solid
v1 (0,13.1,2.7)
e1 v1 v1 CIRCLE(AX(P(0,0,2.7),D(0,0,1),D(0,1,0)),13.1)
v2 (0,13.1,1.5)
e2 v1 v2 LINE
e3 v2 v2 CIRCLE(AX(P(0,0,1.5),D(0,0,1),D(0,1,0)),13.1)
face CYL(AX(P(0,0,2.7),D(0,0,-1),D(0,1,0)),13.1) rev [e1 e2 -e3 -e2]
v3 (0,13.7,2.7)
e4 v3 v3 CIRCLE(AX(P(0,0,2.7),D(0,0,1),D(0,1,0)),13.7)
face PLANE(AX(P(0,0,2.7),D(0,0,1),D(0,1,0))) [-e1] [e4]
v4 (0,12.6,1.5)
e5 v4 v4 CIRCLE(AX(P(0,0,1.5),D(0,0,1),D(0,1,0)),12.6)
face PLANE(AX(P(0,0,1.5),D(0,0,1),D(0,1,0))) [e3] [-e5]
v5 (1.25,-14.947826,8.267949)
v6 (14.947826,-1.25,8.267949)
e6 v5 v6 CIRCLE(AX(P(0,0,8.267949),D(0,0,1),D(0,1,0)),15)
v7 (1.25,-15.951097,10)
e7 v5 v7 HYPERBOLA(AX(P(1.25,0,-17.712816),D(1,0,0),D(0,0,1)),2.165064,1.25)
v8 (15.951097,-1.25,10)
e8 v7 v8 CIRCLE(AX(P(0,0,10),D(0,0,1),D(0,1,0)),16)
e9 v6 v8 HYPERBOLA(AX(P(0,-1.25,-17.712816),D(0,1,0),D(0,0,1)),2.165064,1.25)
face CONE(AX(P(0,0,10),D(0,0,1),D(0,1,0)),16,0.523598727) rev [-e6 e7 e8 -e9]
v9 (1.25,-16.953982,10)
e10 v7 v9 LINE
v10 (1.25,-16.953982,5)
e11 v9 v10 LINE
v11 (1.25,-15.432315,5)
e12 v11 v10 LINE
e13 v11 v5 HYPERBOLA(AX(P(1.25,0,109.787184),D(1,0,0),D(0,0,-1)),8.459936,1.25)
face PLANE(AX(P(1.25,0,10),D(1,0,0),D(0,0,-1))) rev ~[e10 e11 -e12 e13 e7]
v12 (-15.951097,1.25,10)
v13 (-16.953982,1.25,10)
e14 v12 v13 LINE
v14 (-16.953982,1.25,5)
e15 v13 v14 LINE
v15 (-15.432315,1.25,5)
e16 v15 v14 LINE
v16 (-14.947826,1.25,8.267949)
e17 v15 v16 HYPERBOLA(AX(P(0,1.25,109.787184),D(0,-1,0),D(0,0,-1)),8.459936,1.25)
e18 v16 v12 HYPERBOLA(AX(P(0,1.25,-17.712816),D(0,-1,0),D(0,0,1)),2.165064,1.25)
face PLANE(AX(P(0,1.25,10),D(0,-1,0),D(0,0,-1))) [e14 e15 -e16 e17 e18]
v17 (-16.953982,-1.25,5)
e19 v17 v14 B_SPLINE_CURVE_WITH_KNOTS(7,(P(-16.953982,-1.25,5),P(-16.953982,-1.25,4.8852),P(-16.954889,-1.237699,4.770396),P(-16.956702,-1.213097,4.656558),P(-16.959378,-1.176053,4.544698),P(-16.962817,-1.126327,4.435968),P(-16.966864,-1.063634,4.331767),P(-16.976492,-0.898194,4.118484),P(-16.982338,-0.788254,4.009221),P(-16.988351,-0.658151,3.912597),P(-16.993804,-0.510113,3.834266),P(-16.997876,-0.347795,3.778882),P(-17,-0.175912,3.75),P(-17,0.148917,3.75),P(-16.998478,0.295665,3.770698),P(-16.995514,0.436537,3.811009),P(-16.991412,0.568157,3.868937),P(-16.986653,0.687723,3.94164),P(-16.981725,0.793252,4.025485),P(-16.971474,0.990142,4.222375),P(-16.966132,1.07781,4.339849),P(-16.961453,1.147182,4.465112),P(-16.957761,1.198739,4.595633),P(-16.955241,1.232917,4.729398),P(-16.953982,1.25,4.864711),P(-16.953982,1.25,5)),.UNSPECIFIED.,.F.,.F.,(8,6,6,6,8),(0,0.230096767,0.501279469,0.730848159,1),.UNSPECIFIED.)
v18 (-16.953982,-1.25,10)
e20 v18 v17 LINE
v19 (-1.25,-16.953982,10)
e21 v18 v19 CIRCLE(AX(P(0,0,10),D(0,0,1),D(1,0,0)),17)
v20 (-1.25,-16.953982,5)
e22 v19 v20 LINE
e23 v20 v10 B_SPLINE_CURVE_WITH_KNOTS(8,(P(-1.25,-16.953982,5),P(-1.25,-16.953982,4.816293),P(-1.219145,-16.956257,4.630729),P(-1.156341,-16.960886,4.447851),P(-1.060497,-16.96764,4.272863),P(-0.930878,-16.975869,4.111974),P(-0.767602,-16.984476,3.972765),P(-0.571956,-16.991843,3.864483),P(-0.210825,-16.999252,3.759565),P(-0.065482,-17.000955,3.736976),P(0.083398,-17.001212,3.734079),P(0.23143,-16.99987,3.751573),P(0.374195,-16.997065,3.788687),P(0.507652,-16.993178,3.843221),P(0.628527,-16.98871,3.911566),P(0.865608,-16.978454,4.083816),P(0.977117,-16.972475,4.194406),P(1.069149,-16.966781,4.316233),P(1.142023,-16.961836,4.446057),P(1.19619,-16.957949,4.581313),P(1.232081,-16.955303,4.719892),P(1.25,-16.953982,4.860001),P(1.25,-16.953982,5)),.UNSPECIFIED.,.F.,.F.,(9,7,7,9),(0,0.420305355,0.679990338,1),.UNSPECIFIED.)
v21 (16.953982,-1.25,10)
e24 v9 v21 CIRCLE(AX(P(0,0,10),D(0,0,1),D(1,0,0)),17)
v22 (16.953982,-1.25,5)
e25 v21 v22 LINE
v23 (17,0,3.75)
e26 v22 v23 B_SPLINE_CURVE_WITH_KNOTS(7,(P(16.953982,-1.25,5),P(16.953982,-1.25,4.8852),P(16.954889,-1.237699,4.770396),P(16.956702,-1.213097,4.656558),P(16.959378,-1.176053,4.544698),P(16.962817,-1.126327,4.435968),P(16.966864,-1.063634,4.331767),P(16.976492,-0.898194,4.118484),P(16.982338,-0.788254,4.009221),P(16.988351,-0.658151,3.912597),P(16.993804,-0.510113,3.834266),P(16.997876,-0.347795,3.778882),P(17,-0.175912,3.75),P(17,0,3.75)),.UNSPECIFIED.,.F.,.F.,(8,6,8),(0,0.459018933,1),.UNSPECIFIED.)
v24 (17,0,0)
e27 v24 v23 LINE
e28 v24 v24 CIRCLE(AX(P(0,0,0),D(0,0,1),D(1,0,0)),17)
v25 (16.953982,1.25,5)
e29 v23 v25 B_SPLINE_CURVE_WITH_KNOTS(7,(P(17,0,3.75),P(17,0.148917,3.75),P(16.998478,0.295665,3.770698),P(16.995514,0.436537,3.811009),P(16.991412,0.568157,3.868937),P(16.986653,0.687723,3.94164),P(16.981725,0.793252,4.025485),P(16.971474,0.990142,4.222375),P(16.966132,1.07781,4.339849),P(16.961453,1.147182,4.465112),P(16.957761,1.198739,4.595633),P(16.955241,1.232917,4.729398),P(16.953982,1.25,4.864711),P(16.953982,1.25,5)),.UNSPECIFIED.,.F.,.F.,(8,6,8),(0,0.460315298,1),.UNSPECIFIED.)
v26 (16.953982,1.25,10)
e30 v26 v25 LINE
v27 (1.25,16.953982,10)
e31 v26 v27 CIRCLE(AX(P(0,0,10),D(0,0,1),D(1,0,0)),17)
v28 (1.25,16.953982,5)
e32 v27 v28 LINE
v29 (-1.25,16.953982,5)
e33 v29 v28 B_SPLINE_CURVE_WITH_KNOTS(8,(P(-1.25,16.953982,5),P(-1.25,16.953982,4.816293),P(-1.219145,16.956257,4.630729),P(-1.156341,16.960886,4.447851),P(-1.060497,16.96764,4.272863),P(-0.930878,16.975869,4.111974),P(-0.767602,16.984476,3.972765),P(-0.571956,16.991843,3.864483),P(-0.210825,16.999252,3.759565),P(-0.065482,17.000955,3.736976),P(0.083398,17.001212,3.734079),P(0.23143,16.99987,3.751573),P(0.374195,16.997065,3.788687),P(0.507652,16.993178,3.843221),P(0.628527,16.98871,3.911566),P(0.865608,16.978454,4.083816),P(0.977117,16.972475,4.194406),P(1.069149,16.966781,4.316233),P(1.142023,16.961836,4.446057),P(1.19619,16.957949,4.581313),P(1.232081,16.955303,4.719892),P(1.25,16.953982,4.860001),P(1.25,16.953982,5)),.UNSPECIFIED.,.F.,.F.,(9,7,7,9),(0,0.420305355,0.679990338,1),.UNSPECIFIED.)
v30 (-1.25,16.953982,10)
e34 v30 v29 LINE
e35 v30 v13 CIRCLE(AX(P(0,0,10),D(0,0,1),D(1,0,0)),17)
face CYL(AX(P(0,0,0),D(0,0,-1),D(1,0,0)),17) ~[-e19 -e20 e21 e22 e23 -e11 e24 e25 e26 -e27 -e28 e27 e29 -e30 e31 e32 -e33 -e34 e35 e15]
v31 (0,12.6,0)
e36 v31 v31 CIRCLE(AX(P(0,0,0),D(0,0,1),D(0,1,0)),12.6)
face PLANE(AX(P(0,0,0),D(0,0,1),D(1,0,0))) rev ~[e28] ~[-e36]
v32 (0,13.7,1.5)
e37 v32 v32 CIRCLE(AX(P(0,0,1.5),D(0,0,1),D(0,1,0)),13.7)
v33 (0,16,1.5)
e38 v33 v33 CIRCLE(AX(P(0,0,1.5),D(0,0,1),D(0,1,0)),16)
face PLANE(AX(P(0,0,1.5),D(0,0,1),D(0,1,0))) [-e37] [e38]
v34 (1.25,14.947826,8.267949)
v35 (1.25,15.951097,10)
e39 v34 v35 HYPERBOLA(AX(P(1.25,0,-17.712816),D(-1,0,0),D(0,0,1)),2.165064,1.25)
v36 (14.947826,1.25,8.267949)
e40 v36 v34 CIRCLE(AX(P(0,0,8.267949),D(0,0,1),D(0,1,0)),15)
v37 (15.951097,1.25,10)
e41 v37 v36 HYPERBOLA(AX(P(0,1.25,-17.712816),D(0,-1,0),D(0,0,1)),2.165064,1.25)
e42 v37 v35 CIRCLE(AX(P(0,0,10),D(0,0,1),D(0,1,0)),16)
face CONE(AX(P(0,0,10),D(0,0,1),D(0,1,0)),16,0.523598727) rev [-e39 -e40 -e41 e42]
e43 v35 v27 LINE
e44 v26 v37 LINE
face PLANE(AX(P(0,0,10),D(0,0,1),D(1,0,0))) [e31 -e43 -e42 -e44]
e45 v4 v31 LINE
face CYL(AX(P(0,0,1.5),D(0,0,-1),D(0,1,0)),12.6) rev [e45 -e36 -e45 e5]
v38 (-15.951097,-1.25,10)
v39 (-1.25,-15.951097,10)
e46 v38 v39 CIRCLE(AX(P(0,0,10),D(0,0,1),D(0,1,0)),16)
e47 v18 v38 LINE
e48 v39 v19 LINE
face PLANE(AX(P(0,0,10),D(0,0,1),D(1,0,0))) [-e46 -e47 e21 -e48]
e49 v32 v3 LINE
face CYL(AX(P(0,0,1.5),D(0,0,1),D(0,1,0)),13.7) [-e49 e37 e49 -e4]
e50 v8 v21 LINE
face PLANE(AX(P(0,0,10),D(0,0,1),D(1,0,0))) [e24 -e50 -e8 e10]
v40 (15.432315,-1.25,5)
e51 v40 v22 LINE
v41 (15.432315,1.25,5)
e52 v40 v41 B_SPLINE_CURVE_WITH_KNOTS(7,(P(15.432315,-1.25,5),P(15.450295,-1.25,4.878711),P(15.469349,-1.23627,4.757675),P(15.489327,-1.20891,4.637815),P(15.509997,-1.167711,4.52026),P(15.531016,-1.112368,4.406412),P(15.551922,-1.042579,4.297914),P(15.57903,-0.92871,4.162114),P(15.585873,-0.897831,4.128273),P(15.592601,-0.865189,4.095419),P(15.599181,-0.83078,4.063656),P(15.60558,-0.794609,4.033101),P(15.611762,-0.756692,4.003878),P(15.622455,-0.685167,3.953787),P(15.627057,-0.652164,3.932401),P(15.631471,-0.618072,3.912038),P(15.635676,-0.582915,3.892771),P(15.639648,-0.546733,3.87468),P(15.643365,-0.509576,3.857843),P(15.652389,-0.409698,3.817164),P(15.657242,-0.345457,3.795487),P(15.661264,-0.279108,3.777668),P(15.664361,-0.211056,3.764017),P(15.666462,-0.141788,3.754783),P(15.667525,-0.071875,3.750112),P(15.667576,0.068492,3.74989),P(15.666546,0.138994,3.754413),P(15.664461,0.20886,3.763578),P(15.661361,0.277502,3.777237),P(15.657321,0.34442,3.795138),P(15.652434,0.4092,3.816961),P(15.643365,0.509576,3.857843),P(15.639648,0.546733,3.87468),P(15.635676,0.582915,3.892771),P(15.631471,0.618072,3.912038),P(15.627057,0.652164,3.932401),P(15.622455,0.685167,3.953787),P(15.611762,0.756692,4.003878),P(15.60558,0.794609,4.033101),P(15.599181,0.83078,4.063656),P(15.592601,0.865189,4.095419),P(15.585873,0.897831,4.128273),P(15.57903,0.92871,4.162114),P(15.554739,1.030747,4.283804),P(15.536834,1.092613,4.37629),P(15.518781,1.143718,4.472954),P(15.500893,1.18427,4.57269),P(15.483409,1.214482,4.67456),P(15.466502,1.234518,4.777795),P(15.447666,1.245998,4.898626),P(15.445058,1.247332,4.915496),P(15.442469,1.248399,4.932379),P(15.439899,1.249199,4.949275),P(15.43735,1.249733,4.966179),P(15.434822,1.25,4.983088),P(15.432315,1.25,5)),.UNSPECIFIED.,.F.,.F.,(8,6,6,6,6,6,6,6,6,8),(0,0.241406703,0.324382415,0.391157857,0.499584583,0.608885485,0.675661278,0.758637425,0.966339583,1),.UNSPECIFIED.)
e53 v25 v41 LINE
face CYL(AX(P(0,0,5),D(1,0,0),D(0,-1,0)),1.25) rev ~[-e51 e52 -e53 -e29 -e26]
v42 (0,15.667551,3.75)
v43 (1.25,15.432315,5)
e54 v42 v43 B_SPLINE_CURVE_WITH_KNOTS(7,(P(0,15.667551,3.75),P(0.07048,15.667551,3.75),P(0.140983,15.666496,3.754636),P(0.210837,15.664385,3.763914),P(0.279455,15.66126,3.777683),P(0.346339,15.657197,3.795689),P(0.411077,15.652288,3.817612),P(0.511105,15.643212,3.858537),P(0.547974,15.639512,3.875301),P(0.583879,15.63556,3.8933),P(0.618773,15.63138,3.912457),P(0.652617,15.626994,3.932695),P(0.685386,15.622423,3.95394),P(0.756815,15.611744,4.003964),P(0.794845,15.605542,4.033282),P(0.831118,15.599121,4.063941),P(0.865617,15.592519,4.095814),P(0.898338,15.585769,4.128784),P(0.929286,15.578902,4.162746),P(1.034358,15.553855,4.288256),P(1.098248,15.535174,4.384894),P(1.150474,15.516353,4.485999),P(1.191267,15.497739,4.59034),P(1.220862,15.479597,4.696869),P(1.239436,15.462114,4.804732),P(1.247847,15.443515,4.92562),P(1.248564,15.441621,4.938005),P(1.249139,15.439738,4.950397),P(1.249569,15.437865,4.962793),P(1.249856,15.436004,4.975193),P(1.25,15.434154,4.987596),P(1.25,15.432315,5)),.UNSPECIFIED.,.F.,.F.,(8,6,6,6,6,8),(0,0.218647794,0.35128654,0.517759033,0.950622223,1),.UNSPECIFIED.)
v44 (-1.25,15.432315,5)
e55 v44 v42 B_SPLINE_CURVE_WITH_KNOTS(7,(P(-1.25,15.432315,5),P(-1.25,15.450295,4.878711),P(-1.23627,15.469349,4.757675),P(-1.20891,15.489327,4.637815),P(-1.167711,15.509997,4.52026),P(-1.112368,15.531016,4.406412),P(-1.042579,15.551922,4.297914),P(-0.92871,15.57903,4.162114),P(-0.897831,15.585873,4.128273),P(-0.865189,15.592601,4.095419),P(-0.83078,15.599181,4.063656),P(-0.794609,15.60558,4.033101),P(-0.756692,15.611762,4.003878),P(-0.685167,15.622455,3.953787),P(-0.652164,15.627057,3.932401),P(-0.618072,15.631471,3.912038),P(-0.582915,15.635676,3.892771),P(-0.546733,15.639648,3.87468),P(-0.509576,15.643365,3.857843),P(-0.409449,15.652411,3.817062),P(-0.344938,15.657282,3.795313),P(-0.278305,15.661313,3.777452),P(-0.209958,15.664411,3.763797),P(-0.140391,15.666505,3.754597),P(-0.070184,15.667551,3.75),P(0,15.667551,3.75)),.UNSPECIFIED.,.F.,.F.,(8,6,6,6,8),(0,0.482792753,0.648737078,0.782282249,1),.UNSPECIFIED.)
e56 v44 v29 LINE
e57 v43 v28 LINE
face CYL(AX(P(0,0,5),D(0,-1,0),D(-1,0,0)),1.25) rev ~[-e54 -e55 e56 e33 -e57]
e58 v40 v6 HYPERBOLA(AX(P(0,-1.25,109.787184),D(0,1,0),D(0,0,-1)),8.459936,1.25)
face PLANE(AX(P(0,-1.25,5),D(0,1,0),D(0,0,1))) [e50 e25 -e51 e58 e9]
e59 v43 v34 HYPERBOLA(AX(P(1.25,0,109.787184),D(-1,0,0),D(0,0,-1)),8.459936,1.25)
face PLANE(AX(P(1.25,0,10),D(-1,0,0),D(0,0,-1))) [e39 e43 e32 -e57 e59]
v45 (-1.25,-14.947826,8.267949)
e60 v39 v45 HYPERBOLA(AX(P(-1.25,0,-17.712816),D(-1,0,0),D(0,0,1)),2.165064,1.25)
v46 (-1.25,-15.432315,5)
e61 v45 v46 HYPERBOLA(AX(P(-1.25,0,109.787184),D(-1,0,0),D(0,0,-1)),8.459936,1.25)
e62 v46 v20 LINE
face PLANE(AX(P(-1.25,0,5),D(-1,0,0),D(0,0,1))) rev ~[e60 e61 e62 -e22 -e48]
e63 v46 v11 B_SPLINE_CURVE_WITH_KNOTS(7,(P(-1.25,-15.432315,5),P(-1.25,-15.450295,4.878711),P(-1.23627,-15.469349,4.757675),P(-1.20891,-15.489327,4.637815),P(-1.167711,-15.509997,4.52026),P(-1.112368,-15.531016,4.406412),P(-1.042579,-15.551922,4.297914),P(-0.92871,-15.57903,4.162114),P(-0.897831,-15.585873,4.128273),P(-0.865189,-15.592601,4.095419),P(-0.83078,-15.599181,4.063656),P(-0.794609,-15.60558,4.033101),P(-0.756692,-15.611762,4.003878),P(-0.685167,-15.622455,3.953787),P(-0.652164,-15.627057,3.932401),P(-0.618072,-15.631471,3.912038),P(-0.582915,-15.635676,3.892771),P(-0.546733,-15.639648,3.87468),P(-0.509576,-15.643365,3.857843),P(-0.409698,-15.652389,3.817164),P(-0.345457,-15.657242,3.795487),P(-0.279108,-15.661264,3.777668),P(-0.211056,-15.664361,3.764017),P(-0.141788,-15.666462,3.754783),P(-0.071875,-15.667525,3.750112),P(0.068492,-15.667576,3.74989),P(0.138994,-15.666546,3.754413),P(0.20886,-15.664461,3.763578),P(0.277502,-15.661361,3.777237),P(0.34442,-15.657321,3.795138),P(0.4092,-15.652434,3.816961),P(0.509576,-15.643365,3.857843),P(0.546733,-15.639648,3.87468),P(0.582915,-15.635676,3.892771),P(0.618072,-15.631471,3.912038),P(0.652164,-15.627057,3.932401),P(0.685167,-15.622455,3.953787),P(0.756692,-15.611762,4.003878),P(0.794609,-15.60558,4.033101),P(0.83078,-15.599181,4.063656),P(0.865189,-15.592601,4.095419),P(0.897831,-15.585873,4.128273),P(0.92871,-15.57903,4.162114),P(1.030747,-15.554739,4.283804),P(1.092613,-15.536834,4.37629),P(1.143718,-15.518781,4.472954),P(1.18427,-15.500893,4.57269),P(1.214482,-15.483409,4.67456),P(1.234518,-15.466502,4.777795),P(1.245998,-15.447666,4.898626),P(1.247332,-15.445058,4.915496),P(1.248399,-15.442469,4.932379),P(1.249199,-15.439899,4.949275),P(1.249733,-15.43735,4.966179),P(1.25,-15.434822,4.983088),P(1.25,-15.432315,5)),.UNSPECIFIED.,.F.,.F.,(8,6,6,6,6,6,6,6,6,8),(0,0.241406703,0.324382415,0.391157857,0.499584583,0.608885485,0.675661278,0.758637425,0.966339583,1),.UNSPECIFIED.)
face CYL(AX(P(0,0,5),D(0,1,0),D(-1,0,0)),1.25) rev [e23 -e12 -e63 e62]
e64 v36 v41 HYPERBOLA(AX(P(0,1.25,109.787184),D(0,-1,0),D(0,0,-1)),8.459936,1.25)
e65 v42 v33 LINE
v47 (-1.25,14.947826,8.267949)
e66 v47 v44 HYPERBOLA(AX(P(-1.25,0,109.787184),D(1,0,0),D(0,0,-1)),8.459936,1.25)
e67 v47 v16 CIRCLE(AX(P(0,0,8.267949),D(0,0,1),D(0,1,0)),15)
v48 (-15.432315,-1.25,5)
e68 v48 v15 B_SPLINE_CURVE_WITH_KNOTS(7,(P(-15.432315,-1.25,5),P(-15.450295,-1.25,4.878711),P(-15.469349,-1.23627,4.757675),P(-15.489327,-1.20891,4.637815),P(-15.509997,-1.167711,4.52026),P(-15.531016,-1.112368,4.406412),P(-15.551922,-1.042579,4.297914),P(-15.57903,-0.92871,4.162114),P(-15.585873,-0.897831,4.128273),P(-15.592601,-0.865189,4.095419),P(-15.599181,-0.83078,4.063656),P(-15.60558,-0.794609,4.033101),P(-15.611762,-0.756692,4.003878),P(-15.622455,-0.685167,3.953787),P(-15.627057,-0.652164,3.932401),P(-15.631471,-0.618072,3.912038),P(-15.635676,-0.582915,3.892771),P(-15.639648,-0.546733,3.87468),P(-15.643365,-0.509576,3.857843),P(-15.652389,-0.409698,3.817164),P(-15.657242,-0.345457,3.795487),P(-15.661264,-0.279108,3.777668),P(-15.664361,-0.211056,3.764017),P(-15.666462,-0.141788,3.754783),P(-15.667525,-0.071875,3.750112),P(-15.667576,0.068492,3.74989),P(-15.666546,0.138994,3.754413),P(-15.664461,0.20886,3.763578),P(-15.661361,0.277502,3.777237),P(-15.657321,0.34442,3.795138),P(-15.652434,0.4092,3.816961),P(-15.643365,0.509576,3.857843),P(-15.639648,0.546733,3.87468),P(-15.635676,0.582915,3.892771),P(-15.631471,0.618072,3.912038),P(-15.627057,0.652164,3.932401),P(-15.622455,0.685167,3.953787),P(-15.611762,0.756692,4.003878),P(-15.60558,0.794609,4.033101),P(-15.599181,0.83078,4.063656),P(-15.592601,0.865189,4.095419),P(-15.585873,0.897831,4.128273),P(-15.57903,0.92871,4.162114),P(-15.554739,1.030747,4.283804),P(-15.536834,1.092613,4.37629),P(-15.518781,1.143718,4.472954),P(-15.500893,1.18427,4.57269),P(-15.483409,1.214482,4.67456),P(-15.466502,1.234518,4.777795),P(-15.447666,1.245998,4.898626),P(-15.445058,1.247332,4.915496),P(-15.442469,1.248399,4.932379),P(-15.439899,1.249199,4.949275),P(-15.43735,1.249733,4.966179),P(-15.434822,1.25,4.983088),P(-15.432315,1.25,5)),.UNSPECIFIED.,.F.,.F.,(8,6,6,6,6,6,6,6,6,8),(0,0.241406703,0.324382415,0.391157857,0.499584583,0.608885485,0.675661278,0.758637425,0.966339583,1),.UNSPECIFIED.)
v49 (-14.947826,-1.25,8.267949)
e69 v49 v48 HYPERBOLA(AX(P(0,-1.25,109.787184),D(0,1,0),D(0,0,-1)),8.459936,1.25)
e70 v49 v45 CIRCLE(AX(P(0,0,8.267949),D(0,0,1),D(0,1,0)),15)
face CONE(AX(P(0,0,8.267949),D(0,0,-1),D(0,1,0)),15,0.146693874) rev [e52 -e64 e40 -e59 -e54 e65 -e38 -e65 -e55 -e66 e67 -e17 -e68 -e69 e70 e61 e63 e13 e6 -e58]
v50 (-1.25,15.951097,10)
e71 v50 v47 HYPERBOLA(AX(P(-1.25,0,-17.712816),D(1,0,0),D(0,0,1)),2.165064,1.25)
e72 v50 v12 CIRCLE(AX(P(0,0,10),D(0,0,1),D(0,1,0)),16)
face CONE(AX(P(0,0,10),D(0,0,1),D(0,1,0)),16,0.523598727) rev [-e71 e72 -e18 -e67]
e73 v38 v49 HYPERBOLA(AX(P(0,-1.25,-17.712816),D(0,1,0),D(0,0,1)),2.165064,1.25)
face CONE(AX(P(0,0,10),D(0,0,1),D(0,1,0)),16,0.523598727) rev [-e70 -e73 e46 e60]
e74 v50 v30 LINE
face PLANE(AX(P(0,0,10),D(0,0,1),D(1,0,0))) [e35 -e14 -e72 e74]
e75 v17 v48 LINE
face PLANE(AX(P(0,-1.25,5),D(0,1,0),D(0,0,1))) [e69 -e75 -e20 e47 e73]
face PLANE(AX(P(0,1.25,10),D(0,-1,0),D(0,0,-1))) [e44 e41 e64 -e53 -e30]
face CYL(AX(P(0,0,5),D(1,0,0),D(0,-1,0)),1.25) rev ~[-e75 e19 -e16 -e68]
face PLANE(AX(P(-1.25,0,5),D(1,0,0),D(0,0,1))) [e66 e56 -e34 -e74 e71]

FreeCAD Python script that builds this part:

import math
import FreeCAD as App
import Part
import Sketcher
Q = App.Units.Quantity


def add_polygon(sketch, points):
    """Adds a closed chain of lines whose ends are joined by coincident constraints."""
    first, n = sketch.GeometryCount, len(points)
    for a, b in zip(points, points[1:] + points[:1]):
        sketch.addGeometry(Part.LineSegment(App.Vector(*a, 0), App.Vector(*b, 0)), False)
    for i in range(n):
        sketch.addConstraint(Sketcher.Constraint("Coincident", first + i, 2, first + (i + 1) % n, 1))

doc = App.newDocument("Part")
params = doc.addObject("Spreadsheet::Sheet", "Params")
for row, (alias, value) in enumerate([
    ("sketch1_diameter", "34 mm"),
    ("pad1_length", "10 mm"),
    ("sketch2_width", "16 mm"),
    ("sketch2_height", "10 mm"),
    ("sketch2_length", "2 mm"),
    ("sketch2_width2", "12.6 mm"),
    ("sketch2_width3", "0.5 mm"),
    ("groove_angle", "360 deg"),
    ("sketch3_height", "5 mm"),
    ("sketch3_radius", "1.25 mm"),
], start=1):
    params.set(f"A{row}", alias)
    params.set(f"B{row}", "=" + value)
    params.setAlias(f"B{row}", alias)

body = doc.addObject("PartDesign::Body", "Body")

sketch1 = body.newObject("Sketcher::SketchObject", "Sketch")
sketch1.AttachmentSupport = (doc.getObject("XY_Plane"), [""])
sketch1.MapMode = "FlatFace"
sketch1.addGeometry(Part.Circle(App.Vector(0, 0, 0), App.Vector(0, 0, 1), 17), False)
sketch1.addConstraint([
    Sketcher.Constraint("Coincident", 0, 3, -1, 1),
    Sketcher.Constraint("Diameter", 0, Q("34 mm")),
])
sketch1.setExpression("Constraints[1]", "Params.sketch1_diameter")
pad1 = body.newObject("PartDesign::Pad", "Pad")
pad1.Profile = sketch1
pad1.setExpression("Length", "Params.pad1_length")

sketch2 = body.newObject("Sketcher::SketchObject", "Sketch001")
sketch2.AttachmentSupport = (doc.getObject("YZ_Plane"), [""])
sketch2.MapMode = "FlatFace"
add_polygon(sketch2, [(0, 10), (0, 0), (12.6, 0), (12.6, 1.5), (13.1, 1.5), (13.1, 2.7), (13.7, 2.7), (13.7, 1.5), (16, 1.5), (15, 8.3), (16, 10)])
sketch2.addConstraint([
    Sketcher.Constraint("Vertical", 0),
    Sketcher.Constraint("Horizontal", 1),
    Sketcher.Constraint("Vertical", 2),
    Sketcher.Constraint("Horizontal", 3),
    Sketcher.Constraint("Vertical", 4),
    Sketcher.Constraint("Horizontal", 5),
    Sketcher.Constraint("Vertical", 6),
    Sketcher.Constraint("Horizontal", 7),
    Sketcher.Constraint("Horizontal", 10),
    Sketcher.Constraint("Coincident", 0, 2, -1, 1),
    Sketcher.Constraint("Horizontal", 3, 2, 6, 2),
    Sketcher.Constraint("Vertical", 7, 2, 9, 2),
    Sketcher.Constraint("DistanceX", 10, 2, 10, 1, Q("16 mm")),
    Sketcher.Constraint("DistanceY", 0, 2, 0, 1, Q("10 mm")),
    Sketcher.Constraint("Angle", 9, Q("60.000003 deg")),
    Sketcher.Constraint("Distance", 9, Q("2 mm")),
    Sketcher.Constraint("DistanceX", 1, 1, 1, 2, Q("12.6 mm")),
    Sketcher.Constraint("DistanceX", 3, 1, 3, 2, Q("0.5 mm")),
    Sketcher.Constraint("DistanceX", 5, 1, 5, 2, Q("0.6 mm")),
    Sketcher.Constraint("DistanceY", 2, 1, 2, 2, Q("1.5 mm")),
    Sketcher.Constraint("DistanceY", 4, 1, 4, 2, Q("1.2 mm")),
])
sketch2.setExpression("Constraints[23]", "Params.sketch2_width")
sketch2.setExpression("Constraints[24]", "Params.sketch2_height")
sketch2.setExpression("Constraints[26]", "Params.sketch2_length")
sketch2.setExpression("Constraints[27]", "Params.sketch2_width2")
sketch2.setExpression("Constraints[28]", "Params.sketch2_width3")
groove = body.newObject("PartDesign::Groove", "Groove")
groove.Profile = sketch2
groove.ReferenceAxis = (sketch2, ["V_Axis"])
groove.setExpression("Angle", "Params.groove_angle")

sketch3 = body.newObject("Sketcher::SketchObject", "Sketch002")
sketch3.AttachmentSupport = (doc.getObject("XZ_Plane"), [""])
sketch3.MapMode = "FlatFace"
sketch3.addGeometry([
    Part.LineSegment(App.Vector(1.2, 10, 0), App.Vector(-1.2, 10, 0)),
    Part.LineSegment(App.Vector(-1.2, 10, 0), App.Vector(-1.2, 5, 0)),
    Part.ArcOfCircle(Part.Circle(App.Vector(0, 5, 0), App.Vector(0, 0, 1), 1.2), math.radians(180), math.radians(360)),
    Part.LineSegment(App.Vector(1.2, 5, 0), App.Vector(1.2, 10, 0)),
], False)
sketch3.addConstraint([
    Sketcher.Constraint("Coincident", 0, 2, 1, 1),
    Sketcher.Constraint("Tangent", 1, 2, 2, 1),
    Sketcher.Constraint("Tangent", 2, 2, 3, 1),
    Sketcher.Constraint("Coincident", 3, 2, 0, 1),
    Sketcher.Constraint("Horizontal", 0),
    Sketcher.Constraint("Vertical", 1),
    Sketcher.Constraint("Vertical", 3),
    Sketcher.Constraint("PointOnObject", 2, 3, -2),
    Sketcher.Constraint("DistanceY", 1, 2, 1, 1, Q("5 mm")),
    Sketcher.Constraint("Radius", 2, Q("1.25 mm")),
    Sketcher.Constraint("DistanceY", -1, 1, 2, 3, Q("5 mm")),
])
sketch3.setExpression("Constraints[8]", "Params.sketch3_height")
sketch3.setExpression("Constraints[9]", "Params.sketch3_radius")
pocket1 = body.newObject("PartDesign::Pocket", "Pocket")
pocket1.Profile = sketch3
pocket1.Type = "ThroughAll"
pocket1.Midplane = True
doc.recompute()

polarpattern = body.newObject("PartDesign::PolarPattern", "PolarPattern")
polarpattern.Originals = [pocket1]
polarpattern.Axis = (doc.getObject("Z_Axis"), [""])
polarpattern.Angle = 90
polarpattern.Occurrences = 2
body.Tip = polarpattern

doc.recompute()
